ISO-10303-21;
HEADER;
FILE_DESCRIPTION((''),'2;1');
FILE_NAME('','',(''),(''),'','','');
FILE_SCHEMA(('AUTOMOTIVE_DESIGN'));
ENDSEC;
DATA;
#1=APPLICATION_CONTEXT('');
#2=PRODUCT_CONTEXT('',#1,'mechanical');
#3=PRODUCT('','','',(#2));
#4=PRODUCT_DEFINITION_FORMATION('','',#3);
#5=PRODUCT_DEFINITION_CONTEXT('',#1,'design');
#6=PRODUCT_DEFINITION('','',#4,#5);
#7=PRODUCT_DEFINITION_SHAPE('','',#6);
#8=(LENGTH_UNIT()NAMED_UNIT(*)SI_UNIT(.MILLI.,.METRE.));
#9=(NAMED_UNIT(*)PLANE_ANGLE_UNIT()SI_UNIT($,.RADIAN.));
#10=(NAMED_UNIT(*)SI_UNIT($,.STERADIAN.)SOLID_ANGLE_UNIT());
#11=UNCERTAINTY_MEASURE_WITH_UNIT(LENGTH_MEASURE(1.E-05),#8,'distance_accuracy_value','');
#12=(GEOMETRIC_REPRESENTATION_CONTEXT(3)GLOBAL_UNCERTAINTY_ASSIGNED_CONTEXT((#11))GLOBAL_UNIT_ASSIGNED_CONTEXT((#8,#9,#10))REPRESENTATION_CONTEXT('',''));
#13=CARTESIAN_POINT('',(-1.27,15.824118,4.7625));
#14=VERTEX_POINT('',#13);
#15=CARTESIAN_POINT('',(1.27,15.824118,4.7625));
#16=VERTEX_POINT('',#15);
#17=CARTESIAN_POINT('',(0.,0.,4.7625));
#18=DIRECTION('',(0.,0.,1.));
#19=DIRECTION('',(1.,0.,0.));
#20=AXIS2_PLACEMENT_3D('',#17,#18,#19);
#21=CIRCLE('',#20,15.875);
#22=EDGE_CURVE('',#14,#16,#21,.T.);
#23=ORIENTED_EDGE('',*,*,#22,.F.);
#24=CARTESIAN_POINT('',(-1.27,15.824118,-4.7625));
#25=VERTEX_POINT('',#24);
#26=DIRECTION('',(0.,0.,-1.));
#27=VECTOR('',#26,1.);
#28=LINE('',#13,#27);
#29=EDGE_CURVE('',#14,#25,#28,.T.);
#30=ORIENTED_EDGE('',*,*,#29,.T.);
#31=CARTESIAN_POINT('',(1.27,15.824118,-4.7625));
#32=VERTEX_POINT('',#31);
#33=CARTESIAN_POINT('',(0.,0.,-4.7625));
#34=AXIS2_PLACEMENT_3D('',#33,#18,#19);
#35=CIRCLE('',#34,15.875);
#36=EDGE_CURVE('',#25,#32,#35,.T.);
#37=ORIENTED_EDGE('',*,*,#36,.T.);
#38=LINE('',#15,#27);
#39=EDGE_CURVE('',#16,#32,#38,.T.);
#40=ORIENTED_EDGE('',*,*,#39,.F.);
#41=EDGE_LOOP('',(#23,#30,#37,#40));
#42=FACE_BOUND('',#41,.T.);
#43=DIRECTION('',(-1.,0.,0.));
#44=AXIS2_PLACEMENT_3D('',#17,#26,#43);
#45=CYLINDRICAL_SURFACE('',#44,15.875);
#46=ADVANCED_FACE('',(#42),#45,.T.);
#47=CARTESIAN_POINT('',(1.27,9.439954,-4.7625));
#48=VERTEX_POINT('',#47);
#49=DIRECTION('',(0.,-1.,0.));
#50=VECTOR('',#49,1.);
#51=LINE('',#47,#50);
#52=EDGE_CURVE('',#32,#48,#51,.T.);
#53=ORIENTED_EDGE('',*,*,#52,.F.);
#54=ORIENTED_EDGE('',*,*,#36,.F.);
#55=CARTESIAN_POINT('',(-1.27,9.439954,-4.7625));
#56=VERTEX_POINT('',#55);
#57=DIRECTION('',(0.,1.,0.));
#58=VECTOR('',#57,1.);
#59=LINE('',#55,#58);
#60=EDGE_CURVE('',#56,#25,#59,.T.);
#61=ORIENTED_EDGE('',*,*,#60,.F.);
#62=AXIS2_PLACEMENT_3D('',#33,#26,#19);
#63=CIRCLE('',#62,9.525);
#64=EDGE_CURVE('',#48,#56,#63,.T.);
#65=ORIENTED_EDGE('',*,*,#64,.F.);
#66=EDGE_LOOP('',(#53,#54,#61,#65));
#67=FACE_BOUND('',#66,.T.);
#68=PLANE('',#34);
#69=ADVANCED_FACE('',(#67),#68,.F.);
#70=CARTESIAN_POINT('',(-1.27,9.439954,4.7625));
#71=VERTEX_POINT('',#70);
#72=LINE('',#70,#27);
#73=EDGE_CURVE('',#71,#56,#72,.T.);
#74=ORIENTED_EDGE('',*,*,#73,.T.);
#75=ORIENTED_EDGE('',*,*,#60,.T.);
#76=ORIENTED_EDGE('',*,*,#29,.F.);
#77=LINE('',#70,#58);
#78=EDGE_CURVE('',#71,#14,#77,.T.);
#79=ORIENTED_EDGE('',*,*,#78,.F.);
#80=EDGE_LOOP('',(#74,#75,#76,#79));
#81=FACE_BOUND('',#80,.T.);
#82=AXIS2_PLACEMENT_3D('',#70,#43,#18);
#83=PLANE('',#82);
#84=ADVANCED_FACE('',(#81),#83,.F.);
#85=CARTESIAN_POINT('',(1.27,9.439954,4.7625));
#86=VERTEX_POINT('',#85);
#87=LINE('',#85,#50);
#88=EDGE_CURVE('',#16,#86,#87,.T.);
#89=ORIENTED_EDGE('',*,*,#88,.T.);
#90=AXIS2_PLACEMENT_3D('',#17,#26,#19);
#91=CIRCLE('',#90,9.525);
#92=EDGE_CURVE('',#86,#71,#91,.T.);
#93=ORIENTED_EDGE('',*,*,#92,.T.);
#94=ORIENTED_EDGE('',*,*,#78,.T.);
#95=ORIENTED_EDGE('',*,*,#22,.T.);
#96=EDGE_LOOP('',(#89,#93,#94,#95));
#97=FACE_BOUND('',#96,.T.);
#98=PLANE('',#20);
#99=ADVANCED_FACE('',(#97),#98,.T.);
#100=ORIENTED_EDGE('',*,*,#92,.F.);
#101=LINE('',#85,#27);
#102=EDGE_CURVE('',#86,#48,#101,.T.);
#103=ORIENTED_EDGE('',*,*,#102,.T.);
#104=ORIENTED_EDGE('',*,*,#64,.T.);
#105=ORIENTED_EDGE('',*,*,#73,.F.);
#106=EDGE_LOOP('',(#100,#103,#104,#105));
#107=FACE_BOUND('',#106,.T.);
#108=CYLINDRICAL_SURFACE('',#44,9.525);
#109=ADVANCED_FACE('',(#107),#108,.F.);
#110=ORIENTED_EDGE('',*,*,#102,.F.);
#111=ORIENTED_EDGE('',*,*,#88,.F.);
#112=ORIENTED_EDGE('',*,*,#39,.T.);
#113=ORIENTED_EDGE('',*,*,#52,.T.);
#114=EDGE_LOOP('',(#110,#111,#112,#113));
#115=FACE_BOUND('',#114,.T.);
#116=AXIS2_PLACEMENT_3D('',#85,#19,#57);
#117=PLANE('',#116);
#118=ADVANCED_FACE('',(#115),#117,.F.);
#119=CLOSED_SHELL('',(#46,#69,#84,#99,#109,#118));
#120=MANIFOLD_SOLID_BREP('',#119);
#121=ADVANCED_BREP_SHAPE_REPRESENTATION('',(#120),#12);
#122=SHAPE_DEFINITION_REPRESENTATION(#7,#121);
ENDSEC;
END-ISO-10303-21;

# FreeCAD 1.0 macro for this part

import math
import FreeCAD as App
import Part
import Sketcher

V = App.Vector
Q = App.Units.Quantity

doc = App.newDocument("Part")
body = doc.addObject("PartDesign::Body", "Body")

# Sketch on XY plane
sketch1 = doc.addObject("Sketcher::SketchObject", "Sketch")
body.addObject(sketch1)
sketch1.AttachmentSupport = (doc.XY_Plane, [""])
sketch1.MapMode = "FlatFace"
sketch1.addGeometry([
    Part.LineSegment(V(1.27, 15.824118, 0), V(1.27, 9.439954, 0)),
    Part.ArcOfCircle(Part.Circle(V(0, 0, 0), V(0, 0, 1), 9.525), math.radians(97.662256), math.radians(442.337744)),
    Part.LineSegment(V(-1.27, 9.439954, 0), V(-1.27, 15.824118, 0)),
    Part.ArcOfCircle(Part.Circle(V(0, 0, 0), V(0, 0, 1), 15.875), math.radians(94.588566), math.radians(445.411434)),
], False)
sketch1.addConstraint([
    Sketcher.Constraint("Coincident", 0, 2, 1, 2),
    Sketcher.Constraint("Coincident", 1, 1, 2, 1),
    Sketcher.Constraint("Coincident", 2, 2, 3, 1),
    Sketcher.Constraint("Coincident", 3, 2, 0, 1),
    Sketcher.Constraint("Vertical", 0),
    Sketcher.Constraint("Vertical", 2),
    Sketcher.Constraint("Coincident", 1, 3, -1, 1),
    Sketcher.Constraint("Coincident", 3, 3, -1, 1),
    Sketcher.Constraint("Horizontal", 0, 2, 1, 1),
    Sketcher.Constraint("Radius", 1, Q("0.375 in")),
    Sketcher.Constraint("Radius", 3, Q("0.625 in")),
    Sketcher.Constraint("DistanceX", 1, 1, 0, 2, Q("0.1 in")),
])
pad1 = doc.addObject("PartDesign::Pad", "Pad")
body.addObject(pad1)
pad1.Profile = sketch1
pad1.Length = Q("0.375 in")
pad1.Midplane = True

doc.recompute()
